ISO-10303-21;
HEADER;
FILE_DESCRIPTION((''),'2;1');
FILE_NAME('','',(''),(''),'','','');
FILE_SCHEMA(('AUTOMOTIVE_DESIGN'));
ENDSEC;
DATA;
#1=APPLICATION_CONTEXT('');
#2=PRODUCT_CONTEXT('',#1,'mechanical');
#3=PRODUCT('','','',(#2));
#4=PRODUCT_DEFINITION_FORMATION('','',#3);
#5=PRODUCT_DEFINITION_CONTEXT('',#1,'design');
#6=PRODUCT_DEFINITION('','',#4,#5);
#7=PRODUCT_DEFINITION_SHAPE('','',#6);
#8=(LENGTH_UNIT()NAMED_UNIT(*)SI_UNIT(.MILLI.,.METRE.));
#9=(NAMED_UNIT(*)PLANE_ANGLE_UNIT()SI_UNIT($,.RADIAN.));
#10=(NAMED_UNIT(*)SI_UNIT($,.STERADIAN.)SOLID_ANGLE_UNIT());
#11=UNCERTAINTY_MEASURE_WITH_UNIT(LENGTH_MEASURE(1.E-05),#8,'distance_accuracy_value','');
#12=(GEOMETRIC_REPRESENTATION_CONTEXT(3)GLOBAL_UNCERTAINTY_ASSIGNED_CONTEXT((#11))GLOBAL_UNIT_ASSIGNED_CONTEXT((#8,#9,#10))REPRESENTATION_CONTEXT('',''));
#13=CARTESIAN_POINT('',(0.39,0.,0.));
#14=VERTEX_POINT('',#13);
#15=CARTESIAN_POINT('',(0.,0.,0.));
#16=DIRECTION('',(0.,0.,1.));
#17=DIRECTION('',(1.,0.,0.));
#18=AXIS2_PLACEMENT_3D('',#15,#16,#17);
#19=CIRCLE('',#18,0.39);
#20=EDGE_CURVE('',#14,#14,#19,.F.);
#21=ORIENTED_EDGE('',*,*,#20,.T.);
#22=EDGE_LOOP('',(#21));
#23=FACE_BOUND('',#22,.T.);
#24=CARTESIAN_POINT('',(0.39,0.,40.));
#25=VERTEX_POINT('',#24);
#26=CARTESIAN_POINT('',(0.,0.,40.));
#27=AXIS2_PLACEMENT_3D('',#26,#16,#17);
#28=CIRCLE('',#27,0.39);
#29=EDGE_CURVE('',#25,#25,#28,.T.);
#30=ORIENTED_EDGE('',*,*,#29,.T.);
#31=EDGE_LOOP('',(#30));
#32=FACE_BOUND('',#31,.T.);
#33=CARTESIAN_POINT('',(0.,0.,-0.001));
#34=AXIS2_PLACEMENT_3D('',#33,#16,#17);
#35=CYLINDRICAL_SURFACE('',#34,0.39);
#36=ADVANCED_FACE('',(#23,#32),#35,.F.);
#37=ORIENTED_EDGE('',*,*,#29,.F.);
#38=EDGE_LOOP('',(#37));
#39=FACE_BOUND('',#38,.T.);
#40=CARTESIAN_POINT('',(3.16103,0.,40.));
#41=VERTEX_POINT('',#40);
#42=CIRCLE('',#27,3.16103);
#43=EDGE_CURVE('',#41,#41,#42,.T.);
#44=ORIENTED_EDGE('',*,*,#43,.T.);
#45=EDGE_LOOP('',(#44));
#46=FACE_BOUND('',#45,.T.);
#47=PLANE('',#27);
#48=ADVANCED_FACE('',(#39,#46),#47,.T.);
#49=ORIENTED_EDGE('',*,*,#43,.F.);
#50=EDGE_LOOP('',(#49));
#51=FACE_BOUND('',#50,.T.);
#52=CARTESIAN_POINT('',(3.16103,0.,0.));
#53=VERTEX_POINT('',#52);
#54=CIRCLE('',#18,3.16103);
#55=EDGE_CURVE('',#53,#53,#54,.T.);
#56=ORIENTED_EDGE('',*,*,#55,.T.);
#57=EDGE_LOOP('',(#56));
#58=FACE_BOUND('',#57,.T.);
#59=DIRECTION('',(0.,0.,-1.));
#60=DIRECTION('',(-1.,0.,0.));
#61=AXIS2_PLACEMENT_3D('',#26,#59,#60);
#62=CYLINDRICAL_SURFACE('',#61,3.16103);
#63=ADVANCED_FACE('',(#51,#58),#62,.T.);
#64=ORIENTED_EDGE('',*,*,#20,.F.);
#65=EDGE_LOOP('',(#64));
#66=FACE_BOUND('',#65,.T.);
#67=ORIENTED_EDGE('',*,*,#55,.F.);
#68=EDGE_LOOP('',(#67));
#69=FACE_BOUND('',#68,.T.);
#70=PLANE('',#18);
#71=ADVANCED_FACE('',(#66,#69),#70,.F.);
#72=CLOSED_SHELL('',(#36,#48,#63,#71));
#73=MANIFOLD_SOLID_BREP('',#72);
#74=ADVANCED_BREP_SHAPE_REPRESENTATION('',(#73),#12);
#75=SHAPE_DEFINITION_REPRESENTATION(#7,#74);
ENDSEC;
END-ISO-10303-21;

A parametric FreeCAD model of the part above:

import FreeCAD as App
import Part
import Sketcher
from FreeCAD import Vector
Q = App.Units.Quantity

doc = App.newDocument("Part")
body = doc.addObject("PartDesign::Body", "Body")

# Sketch on XY plane
sketch1 = body.newObject("Sketcher::SketchObject", "Sketch")
sketch1.AttachmentSupport = (doc.getObject("XY_Plane"), [""])
sketch1.MapMode = "FlatFace"
sketch1.addGeometry(Part.Circle(Vector(0, 0, 0), Vector(0, 0, 1), 3.2), False)
sketch1.addConstraint([
    Sketcher.Constraint("Coincident", 0, 3, -1, 1),
    Sketcher.Constraint("Diameter", 0, Q("6.32206 mm")),
])
pad1 = body.newObject("PartDesign::Pad", "Pad")
pad1.Profile = sketch1
pad1.Length = 40

# Sketch on XY plane
sketch2 = body.newObject("Sketcher::SketchObject", "Sketch001")
sketch2.AttachmentSupport = (doc.getObject("XY_Plane"), [""])
sketch2.MapMode = "FlatFace"
sketch2.AttachmentOffset = App.Placement(Vector(0, 0, 40), App.Rotation())
sketch2.addGeometry(Part.Circle(Vector(0, 0, 0), Vector(0, 0, 1), 0.39), False)
sketch2.addConstraint([
    Sketcher.Constraint("Coincident", 0, 3, -1, 1),
    Sketcher.Constraint("Diameter", 0, Q("0.78 mm")),
])
pocket1 = body.newObject("PartDesign::Pocket", "Pocket")
pocket1.Profile = sketch2
pocket1.Type = "UpToFirst"

doc.recompute()
